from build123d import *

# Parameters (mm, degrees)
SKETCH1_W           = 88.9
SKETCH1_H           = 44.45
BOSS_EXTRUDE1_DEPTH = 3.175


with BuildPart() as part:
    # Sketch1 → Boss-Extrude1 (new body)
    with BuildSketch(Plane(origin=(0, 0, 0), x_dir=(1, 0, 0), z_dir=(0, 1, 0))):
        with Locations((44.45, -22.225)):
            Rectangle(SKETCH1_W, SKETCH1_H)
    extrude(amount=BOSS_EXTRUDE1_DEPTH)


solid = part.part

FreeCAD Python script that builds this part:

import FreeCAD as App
import Part
import Sketcher
Q = App.Units.Quantity

doc = App.newDocument("Part")
body = doc.addObject("PartDesign::Body", "Body")

# Sketch on XZ plane
sketch1 = body.newObject("Sketcher::SketchObject", "Sketch")
sketch1.AttachmentSupport = (doc.getObject("XZ_Plane"), [""])
sketch1.MapMode = "FlatFace"
sketch1.addGeometry([
    Part.LineSegment(App.Vector(0, 0, 0), App.Vector(0, 44.45, 0)),
    Part.LineSegment(App.Vector(0, 44.45, 0), App.Vector(88.9, 44.45, 0)),
    Part.LineSegment(App.Vector(88.9, 44.45, 0), App.Vector(88.9, 0, 0)),
    Part.LineSegment(App.Vector(88.9, 0, 0), App.Vector(0, 0, 0)),
], False)
sketch1.addConstraint([
    Sketcher.Constraint("Coincident", 0, 2, 1, 1),
    Sketcher.Constraint("Coincident", 1, 2, 2, 1),
    Sketcher.Constraint("Coincident", 2, 2, 3, 1),
    Sketcher.Constraint("Coincident", 3, 2, 0, 1),
    Sketcher.Constraint("Vertical", 0),
    Sketcher.Constraint("Horizontal", 1),
    Sketcher.Constraint("Vertical", 2),
    Sketcher.Constraint("Horizontal", 3),
    Sketcher.Constraint("Coincident", 3, 2, -1, 1),
    Sketcher.Constraint("DistanceX", 1, 1, 1, 2, Q("3.5 in")),
    Sketcher.Constraint("DistanceY", 0, 1, 0, 2, Q("1.75 in")),
])
pad1 = body.newObject("PartDesign::Pad", "Pad")
pad1.Profile = sketch1
pad1.Length = Q("0.125 in")
pad1.Reversed = True

doc.recompute()
